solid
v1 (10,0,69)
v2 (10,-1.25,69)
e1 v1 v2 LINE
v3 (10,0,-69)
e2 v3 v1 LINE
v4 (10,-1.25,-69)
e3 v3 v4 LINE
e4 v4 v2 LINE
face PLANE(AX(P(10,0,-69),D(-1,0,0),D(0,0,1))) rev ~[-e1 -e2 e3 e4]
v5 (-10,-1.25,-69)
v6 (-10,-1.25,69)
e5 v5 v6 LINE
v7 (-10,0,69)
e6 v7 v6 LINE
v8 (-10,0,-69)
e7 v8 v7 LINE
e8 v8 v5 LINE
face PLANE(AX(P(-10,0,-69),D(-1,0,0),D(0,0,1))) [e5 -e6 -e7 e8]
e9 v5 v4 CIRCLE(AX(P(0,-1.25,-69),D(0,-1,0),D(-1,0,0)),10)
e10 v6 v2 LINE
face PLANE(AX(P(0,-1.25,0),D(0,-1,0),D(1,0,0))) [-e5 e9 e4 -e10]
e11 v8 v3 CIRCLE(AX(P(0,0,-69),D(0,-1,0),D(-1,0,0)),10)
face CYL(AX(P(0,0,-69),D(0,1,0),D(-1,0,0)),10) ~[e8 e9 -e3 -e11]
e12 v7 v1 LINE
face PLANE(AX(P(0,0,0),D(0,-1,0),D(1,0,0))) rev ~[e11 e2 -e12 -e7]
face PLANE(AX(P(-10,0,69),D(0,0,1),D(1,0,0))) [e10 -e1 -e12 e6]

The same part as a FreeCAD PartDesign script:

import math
import FreeCAD as App
import Part
import Sketcher

doc = App.newDocument("Part")
body = doc.addObject("PartDesign::Body", "Body")

sketch1 = body.newObject("Sketcher::SketchObject", "Sketch")
sketch1.AttachmentSupport = (doc.getObject("XZ_Plane"), [""])
sketch1.MapMode = "FlatFace"
sketch1.addGeometry(Part.LineSegment(App.Vector(-10, 69, 0), App.Vector(-10, -69, 0)), False)
sketch1.addGeometry(Part.ArcOfCircle(Part.Circle(App.Vector(0, -69, 0), App.Vector(0, 0, 1), 10), math.radians(180), math.radians(360)), False)
sketch1.addGeometry(Part.LineSegment(App.Vector(10, -69, 0), App.Vector(10, 69, 0)), False)
sketch1.addGeometry(Part.LineSegment(App.Vector(10, 69, 0), App.Vector(-10, 69, 0)), False)
sketch1.addConstraint(Sketcher.Constraint("Tangent", 0, 2, 1, 1))
sketch1.addConstraint(Sketcher.Constraint("Tangent", 1, 2, 2, 1))
sketch1.addConstraint(Sketcher.Constraint("Coincident", 2, 2, 3, 1))
sketch1.addConstraint(Sketcher.Constraint("Coincident", 3, 2, 0, 1))
sketch1.addConstraint(Sketcher.Constraint("Vertical", 0))
sketch1.addConstraint(Sketcher.Constraint("Vertical", 2))
sketch1.addConstraint(Sketcher.Constraint("Horizontal", 3))
sketch1.addConstraint(Sketcher.Constraint("Symmetric", 0, 2, 2, 2, -1, 1))
sketch1.addConstraint(Sketcher.Constraint("Radius", 1, 10.0))
sketch1.addConstraint(Sketcher.Constraint("DistanceY", 0, 2, 0, 1, 138.0))
pad1 = body.newObject("PartDesign::Pad", "Pad")
pad1.Profile = sketch1
pad1.Length = 1.25

doc.recompute()
